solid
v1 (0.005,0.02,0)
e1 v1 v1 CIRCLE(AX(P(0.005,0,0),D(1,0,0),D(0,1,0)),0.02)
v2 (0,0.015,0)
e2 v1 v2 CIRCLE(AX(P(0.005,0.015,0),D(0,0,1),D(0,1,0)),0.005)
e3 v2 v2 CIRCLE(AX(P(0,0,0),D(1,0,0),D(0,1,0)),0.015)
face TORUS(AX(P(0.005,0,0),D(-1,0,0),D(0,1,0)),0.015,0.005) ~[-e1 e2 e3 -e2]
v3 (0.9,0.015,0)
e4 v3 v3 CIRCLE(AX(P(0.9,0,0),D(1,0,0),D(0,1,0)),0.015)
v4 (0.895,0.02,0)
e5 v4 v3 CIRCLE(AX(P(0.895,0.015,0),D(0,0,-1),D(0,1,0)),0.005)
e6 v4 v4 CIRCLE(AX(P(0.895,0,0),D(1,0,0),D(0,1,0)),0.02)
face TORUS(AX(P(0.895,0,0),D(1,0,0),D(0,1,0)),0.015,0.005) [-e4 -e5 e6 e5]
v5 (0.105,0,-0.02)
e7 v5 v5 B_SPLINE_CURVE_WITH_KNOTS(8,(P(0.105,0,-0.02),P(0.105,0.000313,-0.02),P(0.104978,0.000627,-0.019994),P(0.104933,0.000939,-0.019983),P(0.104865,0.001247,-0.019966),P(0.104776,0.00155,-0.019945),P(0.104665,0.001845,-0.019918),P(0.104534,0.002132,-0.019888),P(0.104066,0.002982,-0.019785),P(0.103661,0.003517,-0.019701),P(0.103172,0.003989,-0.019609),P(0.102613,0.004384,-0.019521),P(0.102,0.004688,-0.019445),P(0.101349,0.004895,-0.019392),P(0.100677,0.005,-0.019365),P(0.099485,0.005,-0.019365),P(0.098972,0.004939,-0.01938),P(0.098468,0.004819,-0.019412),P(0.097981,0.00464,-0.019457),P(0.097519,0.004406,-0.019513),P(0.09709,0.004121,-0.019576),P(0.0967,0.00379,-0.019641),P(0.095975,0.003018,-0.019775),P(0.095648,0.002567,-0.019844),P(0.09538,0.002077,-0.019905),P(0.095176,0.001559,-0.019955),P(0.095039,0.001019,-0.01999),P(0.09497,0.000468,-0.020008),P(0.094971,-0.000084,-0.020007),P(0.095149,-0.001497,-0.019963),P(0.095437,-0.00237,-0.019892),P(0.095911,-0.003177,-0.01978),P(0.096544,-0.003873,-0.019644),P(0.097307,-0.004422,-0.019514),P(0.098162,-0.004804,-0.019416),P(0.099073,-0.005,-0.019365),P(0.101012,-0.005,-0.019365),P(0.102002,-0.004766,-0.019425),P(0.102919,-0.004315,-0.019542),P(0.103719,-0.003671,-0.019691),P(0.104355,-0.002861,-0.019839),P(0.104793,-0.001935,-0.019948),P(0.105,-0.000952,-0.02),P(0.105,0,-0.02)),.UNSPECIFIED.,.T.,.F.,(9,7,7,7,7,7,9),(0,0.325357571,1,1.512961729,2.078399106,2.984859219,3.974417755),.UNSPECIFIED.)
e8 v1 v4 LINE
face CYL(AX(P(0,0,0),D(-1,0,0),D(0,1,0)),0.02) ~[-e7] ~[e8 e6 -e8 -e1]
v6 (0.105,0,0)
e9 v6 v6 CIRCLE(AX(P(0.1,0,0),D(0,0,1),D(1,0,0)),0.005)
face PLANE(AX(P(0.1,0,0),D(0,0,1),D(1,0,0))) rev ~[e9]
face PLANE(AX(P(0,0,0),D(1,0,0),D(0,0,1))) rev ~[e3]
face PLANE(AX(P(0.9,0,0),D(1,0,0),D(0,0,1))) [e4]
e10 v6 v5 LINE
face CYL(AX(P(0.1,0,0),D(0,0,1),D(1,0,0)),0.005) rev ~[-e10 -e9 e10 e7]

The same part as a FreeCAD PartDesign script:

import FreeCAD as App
import Part
import Sketcher
from FreeCAD import Vector


def edges_at(feature, points):
    """Names of the edges that pass closest to the given points."""
    edges = feature.Shape.Edges
    near = lambda p: min(range(len(edges)), key=lambda i: edges[i].distToShape(Part.Vertex(*p))[0])
    return sorted({f"Edge{near(p) + 1}" for p in points})

doc = App.newDocument("Part")
body = doc.addObject("PartDesign::Body", "Body")

sketch1 = body.newObject("Sketcher::SketchObject", "Sketch")
sketch1.AttachmentSupport = (doc.getObject("YZ_Plane"), [""])
sketch1.MapMode = "FlatFace"
sketch1.addGeometry(Part.Circle(Vector(0, 0, 0), Vector(0, 0, 1), 0.02), False)
sketch1.addConstraint([
    Sketcher.Constraint("Coincident", 0, 3, -1, 1),
    Sketcher.Constraint("Diameter", 0, 0.04),
])
pad1 = body.newObject("PartDesign::Pad", "Pad")
pad1.Profile = sketch1
pad1.Length = 0.9
doc.recompute()

fillet = body.newObject("PartDesign::Fillet", "Fillet")
fillet.Base = (pad1, edges_at(pad1, [(0, -0.02, 0), (0.9, -0.02, 0)]))
fillet.Radius = 0.005

sketch2 = body.newObject("Sketcher::SketchObject", "Sketch001")
sketch2.AttachmentSupport = (doc.getObject("XY_Plane"), [""])
sketch2.MapMode = "FlatFace"
sketch2.addGeometry(Part.Circle(Vector(0.1, 0, 0), Vector(0, 0, 1), 0.005), False)
sketch2.addConstraint([
    Sketcher.Constraint("PointOnObject", 0, 3, -1),
    Sketcher.Constraint("DistanceX", -1, 1, 0, 3, 0.1),
    Sketcher.Constraint("Diameter", 0, 0.01),
])
pocket1 = body.newObject("PartDesign::Pocket", "Pocket")
pocket1.Profile = sketch2
pocket1.Type = "ThroughAll"

doc.recompute()
